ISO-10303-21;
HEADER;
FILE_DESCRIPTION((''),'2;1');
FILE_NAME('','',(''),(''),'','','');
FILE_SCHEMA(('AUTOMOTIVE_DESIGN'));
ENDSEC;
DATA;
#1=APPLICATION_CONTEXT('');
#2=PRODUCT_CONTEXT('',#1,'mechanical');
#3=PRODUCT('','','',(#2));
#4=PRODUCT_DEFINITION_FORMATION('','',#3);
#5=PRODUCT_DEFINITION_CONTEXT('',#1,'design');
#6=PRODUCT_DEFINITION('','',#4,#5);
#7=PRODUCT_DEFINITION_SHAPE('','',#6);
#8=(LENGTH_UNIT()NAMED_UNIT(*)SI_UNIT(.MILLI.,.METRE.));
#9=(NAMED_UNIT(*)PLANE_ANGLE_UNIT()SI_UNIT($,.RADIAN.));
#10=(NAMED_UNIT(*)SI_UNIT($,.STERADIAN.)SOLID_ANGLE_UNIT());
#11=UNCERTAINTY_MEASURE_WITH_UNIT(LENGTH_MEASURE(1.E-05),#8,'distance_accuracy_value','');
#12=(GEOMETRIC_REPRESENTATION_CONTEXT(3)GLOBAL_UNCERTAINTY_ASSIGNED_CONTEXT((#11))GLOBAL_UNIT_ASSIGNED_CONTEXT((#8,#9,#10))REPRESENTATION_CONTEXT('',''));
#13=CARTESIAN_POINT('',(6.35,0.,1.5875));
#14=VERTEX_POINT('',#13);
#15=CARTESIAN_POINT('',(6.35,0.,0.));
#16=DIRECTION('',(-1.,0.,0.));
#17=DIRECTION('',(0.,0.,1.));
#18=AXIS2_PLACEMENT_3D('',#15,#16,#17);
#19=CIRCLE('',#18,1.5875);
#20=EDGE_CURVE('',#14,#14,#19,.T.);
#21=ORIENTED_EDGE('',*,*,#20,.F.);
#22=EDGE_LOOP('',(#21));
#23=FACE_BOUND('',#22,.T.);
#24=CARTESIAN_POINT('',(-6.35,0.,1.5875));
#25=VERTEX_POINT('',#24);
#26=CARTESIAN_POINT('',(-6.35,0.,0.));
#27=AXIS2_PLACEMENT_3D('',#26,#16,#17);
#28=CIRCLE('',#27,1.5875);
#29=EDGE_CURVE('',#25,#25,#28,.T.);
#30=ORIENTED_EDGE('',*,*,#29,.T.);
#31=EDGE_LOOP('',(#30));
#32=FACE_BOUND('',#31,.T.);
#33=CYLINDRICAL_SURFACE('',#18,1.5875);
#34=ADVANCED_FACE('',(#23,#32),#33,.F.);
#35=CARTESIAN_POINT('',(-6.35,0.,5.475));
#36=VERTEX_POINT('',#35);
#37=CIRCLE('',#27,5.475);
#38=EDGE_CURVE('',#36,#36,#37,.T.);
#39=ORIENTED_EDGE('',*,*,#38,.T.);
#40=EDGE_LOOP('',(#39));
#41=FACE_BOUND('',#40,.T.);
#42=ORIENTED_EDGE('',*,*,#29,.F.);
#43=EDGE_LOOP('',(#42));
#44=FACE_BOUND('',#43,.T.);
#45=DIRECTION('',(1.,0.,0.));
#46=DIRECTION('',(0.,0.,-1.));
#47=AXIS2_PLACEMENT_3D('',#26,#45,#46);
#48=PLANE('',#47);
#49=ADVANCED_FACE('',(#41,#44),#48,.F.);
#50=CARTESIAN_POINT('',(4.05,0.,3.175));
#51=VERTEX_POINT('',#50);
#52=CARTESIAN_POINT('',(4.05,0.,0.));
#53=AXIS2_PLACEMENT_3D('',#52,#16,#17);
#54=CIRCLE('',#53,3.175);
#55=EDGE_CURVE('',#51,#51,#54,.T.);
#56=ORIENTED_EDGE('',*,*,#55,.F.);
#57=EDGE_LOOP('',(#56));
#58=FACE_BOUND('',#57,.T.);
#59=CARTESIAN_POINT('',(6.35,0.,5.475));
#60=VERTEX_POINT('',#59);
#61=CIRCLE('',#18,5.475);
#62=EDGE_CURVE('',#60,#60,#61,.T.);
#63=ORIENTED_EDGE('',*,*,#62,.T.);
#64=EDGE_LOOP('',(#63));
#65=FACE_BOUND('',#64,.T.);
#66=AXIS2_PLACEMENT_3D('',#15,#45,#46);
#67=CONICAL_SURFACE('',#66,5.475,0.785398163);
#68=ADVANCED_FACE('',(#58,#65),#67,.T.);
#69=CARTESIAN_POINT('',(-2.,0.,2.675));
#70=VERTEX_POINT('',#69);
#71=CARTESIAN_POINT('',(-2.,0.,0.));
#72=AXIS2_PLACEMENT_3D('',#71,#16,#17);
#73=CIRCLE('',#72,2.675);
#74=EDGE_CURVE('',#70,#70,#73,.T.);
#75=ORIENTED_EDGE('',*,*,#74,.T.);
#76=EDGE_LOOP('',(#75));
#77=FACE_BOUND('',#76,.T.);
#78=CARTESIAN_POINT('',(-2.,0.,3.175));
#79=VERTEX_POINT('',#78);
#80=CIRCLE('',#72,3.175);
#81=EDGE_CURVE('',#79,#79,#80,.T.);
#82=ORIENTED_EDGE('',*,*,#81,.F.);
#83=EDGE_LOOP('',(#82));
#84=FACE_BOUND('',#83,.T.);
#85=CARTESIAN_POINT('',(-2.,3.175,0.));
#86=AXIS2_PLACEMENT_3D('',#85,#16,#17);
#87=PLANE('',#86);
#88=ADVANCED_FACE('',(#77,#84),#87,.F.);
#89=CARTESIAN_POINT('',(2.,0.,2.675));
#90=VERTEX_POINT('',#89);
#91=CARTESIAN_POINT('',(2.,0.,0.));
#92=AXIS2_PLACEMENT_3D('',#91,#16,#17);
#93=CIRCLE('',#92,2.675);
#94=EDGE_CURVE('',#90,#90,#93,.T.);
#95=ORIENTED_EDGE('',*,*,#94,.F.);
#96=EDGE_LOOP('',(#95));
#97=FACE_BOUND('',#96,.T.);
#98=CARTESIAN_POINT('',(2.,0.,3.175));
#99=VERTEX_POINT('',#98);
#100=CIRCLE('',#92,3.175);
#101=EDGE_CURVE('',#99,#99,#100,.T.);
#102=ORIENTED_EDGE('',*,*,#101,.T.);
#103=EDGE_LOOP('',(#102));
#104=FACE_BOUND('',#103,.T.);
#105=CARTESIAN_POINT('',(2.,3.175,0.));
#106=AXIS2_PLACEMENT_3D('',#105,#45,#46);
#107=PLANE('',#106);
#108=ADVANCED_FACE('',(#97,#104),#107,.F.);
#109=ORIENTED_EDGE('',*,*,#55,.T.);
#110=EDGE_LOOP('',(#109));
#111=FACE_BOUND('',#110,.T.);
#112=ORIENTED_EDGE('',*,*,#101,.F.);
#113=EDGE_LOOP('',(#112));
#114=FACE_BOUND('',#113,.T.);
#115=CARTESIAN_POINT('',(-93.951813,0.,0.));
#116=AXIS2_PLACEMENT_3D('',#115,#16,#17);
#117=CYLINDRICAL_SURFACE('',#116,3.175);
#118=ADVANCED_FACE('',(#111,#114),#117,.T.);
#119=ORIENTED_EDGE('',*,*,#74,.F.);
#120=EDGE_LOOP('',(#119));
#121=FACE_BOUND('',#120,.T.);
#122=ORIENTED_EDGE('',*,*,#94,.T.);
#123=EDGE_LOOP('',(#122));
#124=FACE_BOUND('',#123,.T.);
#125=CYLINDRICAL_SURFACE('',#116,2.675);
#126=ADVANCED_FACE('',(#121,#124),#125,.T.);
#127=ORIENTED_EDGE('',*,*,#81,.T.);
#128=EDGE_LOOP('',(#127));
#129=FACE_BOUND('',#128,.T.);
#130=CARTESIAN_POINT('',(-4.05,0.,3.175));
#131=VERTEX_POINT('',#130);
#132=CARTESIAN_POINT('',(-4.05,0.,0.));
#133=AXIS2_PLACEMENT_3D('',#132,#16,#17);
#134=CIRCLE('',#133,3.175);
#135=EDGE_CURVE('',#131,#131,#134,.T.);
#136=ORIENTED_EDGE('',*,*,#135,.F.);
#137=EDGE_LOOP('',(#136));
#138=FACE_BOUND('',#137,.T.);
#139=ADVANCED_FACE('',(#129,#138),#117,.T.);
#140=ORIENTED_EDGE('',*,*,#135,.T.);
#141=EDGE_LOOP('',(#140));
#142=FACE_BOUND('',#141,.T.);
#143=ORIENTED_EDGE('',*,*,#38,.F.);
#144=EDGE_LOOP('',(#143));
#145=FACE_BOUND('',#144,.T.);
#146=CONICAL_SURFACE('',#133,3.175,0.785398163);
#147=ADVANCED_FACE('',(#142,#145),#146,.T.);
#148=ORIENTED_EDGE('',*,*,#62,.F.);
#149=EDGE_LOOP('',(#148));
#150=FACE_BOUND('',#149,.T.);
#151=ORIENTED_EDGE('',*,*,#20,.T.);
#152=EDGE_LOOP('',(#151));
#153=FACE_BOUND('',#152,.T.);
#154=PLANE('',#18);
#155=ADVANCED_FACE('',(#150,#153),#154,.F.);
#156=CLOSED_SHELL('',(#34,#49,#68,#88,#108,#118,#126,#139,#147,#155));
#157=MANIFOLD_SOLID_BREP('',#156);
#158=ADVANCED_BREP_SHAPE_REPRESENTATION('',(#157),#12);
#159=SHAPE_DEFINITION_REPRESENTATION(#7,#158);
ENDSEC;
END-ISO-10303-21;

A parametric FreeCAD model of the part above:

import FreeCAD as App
import Part
import Sketcher
from FreeCAD import Vector
Q = App.Units.Quantity

doc = App.newDocument("Part")
params = doc.addObject("Spreadsheet::Sheet", "Params")
for row, (alias, value) in enumerate([
    ("sketch1_width", "4 mm"),
    ("sketch1_width2", "12.7 mm"),
    ("sketch1_height", "0.5 mm"),
    ("sketch1_width3", "2.05 mm"),
    ("revolution_angle", "360 deg"),
], start=1):
    params.set(f"A{row}", alias)
    params.set(f"B{row}", "=" + value)
    params.setAlias(f"B{row}", alias)

body = doc.addObject("PartDesign::Body", "Body")

# Sketch on XY plane
sketch1 = body.newObject("Sketcher::SketchObject", "Sketch")
sketch1.AttachmentSupport = (doc.getObject("XY_Plane"), [""])
sketch1.MapMode = "FlatFace"
sketch1.addGeometry(Part.LineSegment(Vector(-6.35, 5.475, 0), Vector(-6.35, 0, 0)), False)
sketch1.addGeometry(Part.LineSegment(Vector(-6.35, 0, 0), Vector(6.35, 0, 0)), False)
sketch1.addGeometry(Part.LineSegment(Vector(6.35, 0, 0), Vector(6.35, 5.475, 0)), False)
sketch1.addGeometry(Part.LineSegment(Vector(6.35, 5.475, 0), Vector(4.05, 3.175, 0)), False)
sketch1.addGeometry(Part.LineSegment(Vector(4.05, 3.175, 0), Vector(2, 3.175, 0)), False)
sketch1.addGeometry(Part.LineSegment(Vector(2, 3.175, 0), Vector(2, 2.675, 0)), False)
sketch1.addGeometry(Part.LineSegment(Vector(2, 2.675, 0), Vector(-2, 2.675, 0)), False)
sketch1.addGeometry(Part.LineSegment(Vector(-2, 2.675, 0), Vector(-2, 3.175, 0)), False)
sketch1.addGeometry(Part.LineSegment(Vector(-2, 3.175, 0), Vector(-4.05, 3.175, 0)), False)
sketch1.addGeometry(Part.LineSegment(Vector(-4.05, 3.175, 0), Vector(-6.35, 5.475, 0)), False)
sketch1.addConstraint(Sketcher.Constraint("Coincident", 0, 2, 1, 1))
sketch1.addConstraint(Sketcher.Constraint("Coincident", 1, 2, 2, 1))
sketch1.addConstraint(Sketcher.Constraint("Coincident", 2, 2, 3, 1))
sketch1.addConstraint(Sketcher.Constraint("Coincident", 3, 2, 4, 1))
sketch1.addConstraint(Sketcher.Constraint("Coincident", 4, 2, 5, 1))
sketch1.addConstraint(Sketcher.Constraint("Coincident", 5, 2, 6, 1))
sketch1.addConstraint(Sketcher.Constraint("Coincident", 6, 2, 7, 1))
sketch1.addConstraint(Sketcher.Constraint("Coincident", 7, 2, 8, 1))
sketch1.addConstraint(Sketcher.Constraint("Coincident", 8, 2, 9, 1))
sketch1.addConstraint(Sketcher.Constraint("Coincident", 9, 2, 0, 1))
sketch1.addConstraint(Sketcher.Constraint("Vertical", 0))
sketch1.addConstraint(Sketcher.Constraint("Horizontal", 1))
sketch1.addConstraint(Sketcher.Constraint("Vertical", 2))
sketch1.addConstraint(Sketcher.Constraint("Horizontal", 4))
sketch1.addConstraint(Sketcher.Constraint("Vertical", 5))
sketch1.addConstraint(Sketcher.Constraint("Horizontal", 6))
sketch1.addConstraint(Sketcher.Constraint("Vertical", 7))
sketch1.addConstraint(Sketcher.Constraint("Horizontal", 8))
sketch1.addConstraint(Sketcher.Constraint("Symmetric", 0, 2, 1, 2, -1, 1))
sketch1.addConstraint(Sketcher.Constraint("Symmetric", 4, 2, 7, 2, -2))
sketch1.addConstraint(Sketcher.Constraint("Perpendicular", 3, 9))
sketch1.addConstraint(Sketcher.Constraint("Horizontal", 2, 2, 9, 2))
sketch1.addConstraint(Sketcher.Constraint("Equal", 4, 8))
sketch1.addConstraint(Sketcher.Constraint("DistanceX", 6, 2, 6, 1, Q("4 mm")))
sketch1.addConstraint(Sketcher.Constraint("DistanceX", 1, 1, 1, 2, Q("12.7 mm")))
sketch1.addConstraint(Sketcher.Constraint("DistanceY", 5, 2, 5, 1, Q("0.5 mm")))
sketch1.addConstraint(Sketcher.Constraint("DistanceX", 4, 2, 4, 1, Q("2.05 mm")))
sketch1.addConstraint(Sketcher.Constraint("DistanceY", 0, 2, 0, 1, Q("5.475 mm")))
sketch1.setExpression("Constraints[23]", "Params.sketch1_width")
sketch1.setExpression("Constraints[24]", "Params.sketch1_width2")
sketch1.setExpression("Constraints[25]", "Params.sketch1_height")
sketch1.setExpression("Constraints[26]", "Params.sketch1_width3")
revolution = body.newObject("PartDesign::Revolution", "Revolution")
revolution.Profile = sketch1
revolution.ReferenceAxis = (sketch1, ["H_Axis"])
revolution.setExpression("Angle", "Params.revolution_angle")

# Sketch on YZ plane
sketch2 = body.newObject("Sketcher::SketchObject", "Sketch001")
sketch2.AttachmentSupport = (doc.getObject("YZ_Plane"), [""])
sketch2.MapMode = "FlatFace"
sketch2.AttachmentOffset = App.Placement(Vector(0, 0, -6.35), App.Rotation())
sketch2.addGeometry(Part.Circle(Vector(0, 0, 0), Vector(0, 0, 1), 1.5875), False)
sketch2.addConstraint(Sketcher.Constraint("Coincident", 0, 3, -1, 1))
sketch2.addConstraint(Sketcher.Constraint("Diameter", 0, Q("3.175 mm")))
pocket1 = body.newObject("PartDesign::Pocket", "Pocket")
pocket1.Profile = sketch2
pocket1.Type = "ThroughAll"
pocket1.Reversed = True

doc.recompute()
